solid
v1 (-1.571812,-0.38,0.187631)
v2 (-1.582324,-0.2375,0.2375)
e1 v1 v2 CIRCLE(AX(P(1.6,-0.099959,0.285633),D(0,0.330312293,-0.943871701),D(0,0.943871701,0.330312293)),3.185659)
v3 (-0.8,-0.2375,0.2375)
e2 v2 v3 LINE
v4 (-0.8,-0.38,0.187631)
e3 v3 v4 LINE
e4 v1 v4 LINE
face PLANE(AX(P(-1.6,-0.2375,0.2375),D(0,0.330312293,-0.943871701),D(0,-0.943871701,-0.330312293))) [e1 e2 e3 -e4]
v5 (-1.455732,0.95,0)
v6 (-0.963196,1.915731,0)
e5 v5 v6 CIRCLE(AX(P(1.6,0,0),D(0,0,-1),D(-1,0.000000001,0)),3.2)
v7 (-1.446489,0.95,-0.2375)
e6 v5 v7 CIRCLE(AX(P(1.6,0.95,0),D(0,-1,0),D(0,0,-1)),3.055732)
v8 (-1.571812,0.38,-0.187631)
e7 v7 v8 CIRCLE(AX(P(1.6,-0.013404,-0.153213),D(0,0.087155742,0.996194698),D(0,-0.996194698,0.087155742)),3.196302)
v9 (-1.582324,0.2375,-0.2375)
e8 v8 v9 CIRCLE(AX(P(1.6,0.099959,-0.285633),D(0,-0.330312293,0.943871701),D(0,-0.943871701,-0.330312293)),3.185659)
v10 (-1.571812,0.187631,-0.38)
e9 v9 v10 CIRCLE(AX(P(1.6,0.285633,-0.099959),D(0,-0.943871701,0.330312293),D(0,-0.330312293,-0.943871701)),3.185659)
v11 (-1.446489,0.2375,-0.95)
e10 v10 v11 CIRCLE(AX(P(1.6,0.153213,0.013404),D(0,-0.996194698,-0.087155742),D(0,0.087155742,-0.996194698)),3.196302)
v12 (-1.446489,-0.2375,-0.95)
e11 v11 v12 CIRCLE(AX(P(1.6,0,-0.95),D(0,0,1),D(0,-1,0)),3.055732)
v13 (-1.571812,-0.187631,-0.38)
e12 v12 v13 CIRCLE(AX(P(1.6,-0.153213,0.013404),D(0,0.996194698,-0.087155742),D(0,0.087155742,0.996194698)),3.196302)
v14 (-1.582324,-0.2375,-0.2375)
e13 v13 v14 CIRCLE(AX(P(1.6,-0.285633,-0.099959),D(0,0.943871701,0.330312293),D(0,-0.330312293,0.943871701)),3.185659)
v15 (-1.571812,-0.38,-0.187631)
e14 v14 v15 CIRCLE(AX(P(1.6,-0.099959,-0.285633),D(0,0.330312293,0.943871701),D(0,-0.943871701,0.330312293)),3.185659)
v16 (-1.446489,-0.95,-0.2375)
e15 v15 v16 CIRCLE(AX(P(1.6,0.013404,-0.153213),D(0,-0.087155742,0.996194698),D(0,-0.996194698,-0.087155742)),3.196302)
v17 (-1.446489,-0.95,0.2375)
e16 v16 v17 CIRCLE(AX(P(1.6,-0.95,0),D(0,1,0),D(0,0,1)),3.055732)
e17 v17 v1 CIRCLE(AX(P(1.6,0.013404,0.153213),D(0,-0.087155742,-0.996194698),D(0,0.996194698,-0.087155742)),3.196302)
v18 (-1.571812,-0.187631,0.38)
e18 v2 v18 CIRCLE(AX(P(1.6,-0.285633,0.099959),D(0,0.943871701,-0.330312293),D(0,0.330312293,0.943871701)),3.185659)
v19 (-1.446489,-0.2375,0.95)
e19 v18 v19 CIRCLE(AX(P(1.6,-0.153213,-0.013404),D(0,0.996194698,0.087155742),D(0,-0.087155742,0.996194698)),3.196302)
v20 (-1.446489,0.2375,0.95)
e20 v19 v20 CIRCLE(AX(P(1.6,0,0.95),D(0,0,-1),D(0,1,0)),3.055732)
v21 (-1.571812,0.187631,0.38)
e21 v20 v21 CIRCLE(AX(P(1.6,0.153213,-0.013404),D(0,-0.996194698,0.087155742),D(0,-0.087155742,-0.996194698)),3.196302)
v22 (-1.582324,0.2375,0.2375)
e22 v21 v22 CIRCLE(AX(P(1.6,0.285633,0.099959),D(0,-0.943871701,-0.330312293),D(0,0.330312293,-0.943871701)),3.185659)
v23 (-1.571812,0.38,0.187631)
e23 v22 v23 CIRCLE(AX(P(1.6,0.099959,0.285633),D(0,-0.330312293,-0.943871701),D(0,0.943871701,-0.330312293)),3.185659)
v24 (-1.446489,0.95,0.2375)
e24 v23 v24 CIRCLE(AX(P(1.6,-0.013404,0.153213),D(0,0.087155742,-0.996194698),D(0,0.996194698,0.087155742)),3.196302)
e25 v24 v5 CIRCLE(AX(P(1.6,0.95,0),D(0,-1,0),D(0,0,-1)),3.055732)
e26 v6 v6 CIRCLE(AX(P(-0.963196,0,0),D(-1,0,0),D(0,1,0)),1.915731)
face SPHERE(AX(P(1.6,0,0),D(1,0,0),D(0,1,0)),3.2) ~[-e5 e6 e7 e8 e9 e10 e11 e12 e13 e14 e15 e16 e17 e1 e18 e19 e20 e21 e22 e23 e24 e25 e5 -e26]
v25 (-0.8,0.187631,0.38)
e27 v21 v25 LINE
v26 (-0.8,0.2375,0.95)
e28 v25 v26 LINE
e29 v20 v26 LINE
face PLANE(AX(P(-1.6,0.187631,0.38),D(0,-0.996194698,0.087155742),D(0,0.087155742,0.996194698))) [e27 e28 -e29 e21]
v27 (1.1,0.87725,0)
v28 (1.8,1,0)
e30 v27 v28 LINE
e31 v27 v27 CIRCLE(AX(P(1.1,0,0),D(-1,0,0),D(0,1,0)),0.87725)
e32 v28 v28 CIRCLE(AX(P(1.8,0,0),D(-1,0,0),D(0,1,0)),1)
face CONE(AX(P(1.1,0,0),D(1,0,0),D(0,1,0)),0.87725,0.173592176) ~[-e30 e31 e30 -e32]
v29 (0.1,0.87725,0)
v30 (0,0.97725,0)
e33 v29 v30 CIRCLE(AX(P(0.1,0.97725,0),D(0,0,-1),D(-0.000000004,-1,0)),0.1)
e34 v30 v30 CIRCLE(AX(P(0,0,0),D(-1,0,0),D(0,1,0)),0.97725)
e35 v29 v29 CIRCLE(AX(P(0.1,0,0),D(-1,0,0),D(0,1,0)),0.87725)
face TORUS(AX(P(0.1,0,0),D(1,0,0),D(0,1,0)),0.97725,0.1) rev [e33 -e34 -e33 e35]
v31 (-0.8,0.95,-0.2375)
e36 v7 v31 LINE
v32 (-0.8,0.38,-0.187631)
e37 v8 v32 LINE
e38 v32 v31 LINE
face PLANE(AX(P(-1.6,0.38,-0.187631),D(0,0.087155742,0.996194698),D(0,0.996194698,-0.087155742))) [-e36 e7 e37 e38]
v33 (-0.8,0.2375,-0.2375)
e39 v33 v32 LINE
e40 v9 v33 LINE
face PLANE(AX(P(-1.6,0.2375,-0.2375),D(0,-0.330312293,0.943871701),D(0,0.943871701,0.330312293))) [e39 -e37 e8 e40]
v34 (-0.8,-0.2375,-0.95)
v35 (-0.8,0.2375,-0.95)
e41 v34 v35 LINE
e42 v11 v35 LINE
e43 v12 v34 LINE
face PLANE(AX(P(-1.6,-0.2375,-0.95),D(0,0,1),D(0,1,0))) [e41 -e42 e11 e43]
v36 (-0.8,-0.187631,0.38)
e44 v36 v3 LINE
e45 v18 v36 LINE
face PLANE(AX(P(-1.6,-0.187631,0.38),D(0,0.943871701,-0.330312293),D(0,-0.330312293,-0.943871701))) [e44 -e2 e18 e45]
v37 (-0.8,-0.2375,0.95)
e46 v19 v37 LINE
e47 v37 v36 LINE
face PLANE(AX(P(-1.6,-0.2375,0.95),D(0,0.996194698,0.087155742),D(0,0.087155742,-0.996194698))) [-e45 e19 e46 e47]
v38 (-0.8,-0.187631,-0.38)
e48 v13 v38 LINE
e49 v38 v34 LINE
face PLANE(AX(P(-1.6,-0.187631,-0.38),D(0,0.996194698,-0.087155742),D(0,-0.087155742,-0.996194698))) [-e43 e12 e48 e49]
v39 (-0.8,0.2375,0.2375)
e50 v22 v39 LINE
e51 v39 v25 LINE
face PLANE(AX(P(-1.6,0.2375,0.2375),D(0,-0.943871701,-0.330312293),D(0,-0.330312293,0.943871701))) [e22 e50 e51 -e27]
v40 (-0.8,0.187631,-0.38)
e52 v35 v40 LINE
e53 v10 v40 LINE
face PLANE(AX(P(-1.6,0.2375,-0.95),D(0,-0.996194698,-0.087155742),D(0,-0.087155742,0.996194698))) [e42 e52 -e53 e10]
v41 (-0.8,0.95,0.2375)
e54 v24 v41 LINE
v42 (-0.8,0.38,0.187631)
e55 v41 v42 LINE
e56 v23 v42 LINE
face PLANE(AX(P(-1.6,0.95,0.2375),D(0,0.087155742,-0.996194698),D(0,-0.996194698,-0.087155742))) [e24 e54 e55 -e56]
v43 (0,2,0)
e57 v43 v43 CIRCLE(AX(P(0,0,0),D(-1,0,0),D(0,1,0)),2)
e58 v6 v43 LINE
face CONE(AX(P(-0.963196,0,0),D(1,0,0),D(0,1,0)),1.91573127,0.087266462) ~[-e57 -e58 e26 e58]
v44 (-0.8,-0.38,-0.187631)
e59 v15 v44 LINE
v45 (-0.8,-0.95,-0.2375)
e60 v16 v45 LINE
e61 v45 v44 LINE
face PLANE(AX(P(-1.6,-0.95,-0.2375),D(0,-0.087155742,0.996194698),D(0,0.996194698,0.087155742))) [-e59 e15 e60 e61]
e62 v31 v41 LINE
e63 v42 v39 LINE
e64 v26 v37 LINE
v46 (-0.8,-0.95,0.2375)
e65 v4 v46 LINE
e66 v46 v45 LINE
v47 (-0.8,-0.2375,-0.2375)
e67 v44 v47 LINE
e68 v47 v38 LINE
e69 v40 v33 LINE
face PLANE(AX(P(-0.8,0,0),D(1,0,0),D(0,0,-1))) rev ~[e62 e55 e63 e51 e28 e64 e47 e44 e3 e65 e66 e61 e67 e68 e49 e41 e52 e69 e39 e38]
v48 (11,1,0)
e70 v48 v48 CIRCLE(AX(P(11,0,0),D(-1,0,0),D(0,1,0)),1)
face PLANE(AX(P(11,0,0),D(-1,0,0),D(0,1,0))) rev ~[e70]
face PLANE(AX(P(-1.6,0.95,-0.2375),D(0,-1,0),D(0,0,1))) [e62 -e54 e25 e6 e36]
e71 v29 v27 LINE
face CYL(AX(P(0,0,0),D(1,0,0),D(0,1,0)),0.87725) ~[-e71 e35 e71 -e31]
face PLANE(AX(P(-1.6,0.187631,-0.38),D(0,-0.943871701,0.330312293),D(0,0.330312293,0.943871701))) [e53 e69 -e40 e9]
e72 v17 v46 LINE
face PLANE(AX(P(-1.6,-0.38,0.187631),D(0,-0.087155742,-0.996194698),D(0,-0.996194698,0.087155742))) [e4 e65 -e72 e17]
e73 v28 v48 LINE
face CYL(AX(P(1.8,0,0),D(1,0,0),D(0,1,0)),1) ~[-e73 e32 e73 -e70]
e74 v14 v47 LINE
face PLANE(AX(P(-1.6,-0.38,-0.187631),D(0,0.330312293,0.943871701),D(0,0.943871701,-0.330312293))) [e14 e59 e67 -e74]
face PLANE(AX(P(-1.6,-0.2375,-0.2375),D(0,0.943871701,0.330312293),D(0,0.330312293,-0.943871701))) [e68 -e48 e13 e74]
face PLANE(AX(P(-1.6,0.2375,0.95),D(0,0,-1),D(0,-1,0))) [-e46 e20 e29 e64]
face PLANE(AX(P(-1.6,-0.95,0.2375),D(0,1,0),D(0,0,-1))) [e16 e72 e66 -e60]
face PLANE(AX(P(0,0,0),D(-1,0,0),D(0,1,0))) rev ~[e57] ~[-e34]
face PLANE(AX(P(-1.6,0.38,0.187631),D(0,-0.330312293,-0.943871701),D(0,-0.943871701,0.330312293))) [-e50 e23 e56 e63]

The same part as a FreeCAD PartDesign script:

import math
import FreeCAD as App
import Part
import Sketcher
Q = App.Units.Quantity


def add_polygon(sketch, points):
    """Adds a closed chain of lines whose ends are joined by coincident constraints."""
    first, n = sketch.GeometryCount, len(points)
    for a, b in zip(points, points[1:] + points[:1]):
        sketch.addGeometry(Part.LineSegment(App.Vector(*a, 0), App.Vector(*b, 0)), False)
    for i in range(n):
        sketch.addConstraint(Sketcher.Constraint("Coincident", first + i, 2, first + (i + 1) % n, 1))

doc = App.newDocument("Part")
body = doc.addObject("PartDesign::Body", "Body")

# Sketch on XY plane
sketch1 = doc.addObject("Sketcher::SketchObject", "Sketch")
body.addObject(sketch1)
sketch1.AttachmentSupport = (doc.XY_Plane, [""])
sketch1.MapMode = "FlatFace"
sketch1.addGeometry([
    Part.LineSegment(App.Vector(0, 2, 0), App.Vector(-1, 1.9, 0)),  # 0
    Part.ArcOfCircle(Part.Circle(App.Vector(1.6, 0, 0), App.Vector(0, 0, 1), 3.2), math.radians(143), math.radians(180)),  # 1
    Part.LineSegment(App.Vector(-1.6, 0, 0), App.Vector(11, 0, 0)),  # 2
    Part.LineSegment(App.Vector(11, 0, 0), App.Vector(11, 1, 0)),  # 3
    Part.LineSegment(App.Vector(11, 1, 0), App.Vector(1.8, 1, 0)),  # 4
    Part.LineSegment(App.Vector(1.8, 1, 0), App.Vector(1.1, 0.9, 0)),  # 5
    Part.LineSegment(App.Vector(1.1, 0.9, 0), App.Vector(0, 0.9, 0)),  # 6
    Part.LineSegment(App.Vector(0, 0.9, 0), App.Vector(0, 2, 0)),  # 7
], False)
sketch1.addConstraint([
    Sketcher.Constraint("Coincident", 0, 2, 1, 1),
    Sketcher.Constraint("Coincident", 1, 2, 2, 1),
    Sketcher.Constraint("Coincident", 2, 2, 3, 1),
    Sketcher.Constraint("Coincident", 3, 2, 4, 1),
    Sketcher.Constraint("Coincident", 4, 2, 5, 1),
    Sketcher.Constraint("Coincident", 5, 2, 6, 1),
    Sketcher.Constraint("Coincident", 6, 2, 7, 1),
    Sketcher.Constraint("Coincident", 7, 2, 0, 1),
    Sketcher.Constraint("Horizontal", 2),
    Sketcher.Constraint("Vertical", 3),
    Sketcher.Constraint("Horizontal", 4),
    Sketcher.Constraint("Horizontal", 6),
    Sketcher.Constraint("Vertical", 7),
    Sketcher.Constraint("PointOnObject", 1, 3, -1),
    Sketcher.Constraint("PointOnObject", 1, 2, -1),
    Sketcher.Constraint("PointOnObject", 6, 2, -2),
    Sketcher.Constraint("Radius", 1, Q("3.2 mm")),
    Sketcher.Constraint("DistanceY", 3, 1, 3, 2, Q("1 mm")),
    Sketcher.Constraint("Angle", 0, Q("-175 deg")),
    Sketcher.Constraint("DistanceX", 2, 1, 2, 2, Q("12.6 mm")),
    Sketcher.Constraint("DistanceX", 4, 2, 4, 1, Q("9.2 mm")),
    Sketcher.Constraint("DistanceX", 6, 2, 6, 1, Q("1.1 mm")),
    Sketcher.Constraint("DistanceX", -1, 1, 2, 2, Q("11 mm")),
    Sketcher.Constraint("DistanceY", -1, 1, 7, 2, Q("2 mm")),
    Sketcher.Constraint("DistanceY", 7, 1, 7, 2, Q("1.12275 mm")),
])
revolution = doc.addObject("PartDesign::Revolution", "Revolution")
body.addObject(revolution)
revolution.Profile = sketch1
revolution.ReferenceAxis = (sketch1, ["H_Axis"])
revolution.Angle = 360

# Sketch on XY plane
sketch2 = doc.addObject("Sketcher::SketchObject", "Sketch001")
body.addObject(sketch2)
sketch2.AttachmentSupport = (doc.XY_Plane, [""])
sketch2.MapMode = "FlatFace"
sketch2.addGeometry([
    Part.LineSegment(App.Vector(-0.1, 0.78, 0), App.Vector(1.1, 0.78, 0)),  # 0
    Part.LineSegment(App.Vector(1.1, 0.78, 0), App.Vector(1.1, 0.88, 0)),  # 1
    Part.LineSegment(App.Vector(1.1, 0.88, 0), App.Vector(0.1, 0.88, 0)),  # 2
    Part.ArcOfCircle(Part.Circle(App.Vector(0.1, 0.98, 0), App.Vector(0, 0, 1), 0.1), math.radians(180), math.radians(270)),  # 3
    Part.LineSegment(App.Vector(0, 0.98, 0), App.Vector(-0.1, 0.98, 0)),  # 4
    Part.LineSegment(App.Vector(-0.1, 0.98, 0), App.Vector(-0.1, 0.78, 0)),  # 5
], False)
sketch2.addConstraint([
    Sketcher.Constraint("Coincident", 0, 2, 1, 1),
    Sketcher.Constraint("Coincident", 1, 2, 2, 1),
    Sketcher.Constraint("Tangent", 2, 2, 3, 2),
    Sketcher.Constraint("Coincident", 3, 1, 4, 1),
    Sketcher.Constraint("Coincident", 4, 2, 5, 1),
    Sketcher.Constraint("Coincident", 5, 2, 0, 1),
    Sketcher.Constraint("Horizontal", 0),
    Sketcher.Constraint("Vertical", 1),
    Sketcher.Constraint("Horizontal", 2),
    Sketcher.Constraint("Horizontal", 4),
    Sketcher.Constraint("Vertical", 5),
    Sketcher.Constraint("PointOnObject", 3, 1, -2),
    Sketcher.Constraint("Equal", 4, 1),
    Sketcher.Constraint("Radius", 3, Q("0.1 mm")),
    Sketcher.Constraint("DistanceX", 2, 2, 2, 1, Q("1 mm")),
    Sketcher.Constraint("DistanceX", 0, 1, 0, 2, Q("1.2 mm")),
    Sketcher.Constraint("DistanceY", 5, 2, 5, 1, Q("0.2 mm")),
    Sketcher.Constraint("DistanceY", -1, 1, 3, 3, Q("0.97725 mm")),
])
revolution2 = doc.addObject("PartDesign::Revolution", "Revolution001")
body.addObject(revolution2)
revolution2.Profile = sketch2
revolution2.ReferenceAxis = (sketch2, ["H_Axis"])
revolution2.Angle = 360

# Sketch on YZ plane
sketch3 = doc.addObject("Sketcher::SketchObject", "Sketch002")
body.addObject(sketch3)
sketch3.AttachmentSupport = (doc.YZ_Plane, [""])
sketch3.MapMode = "FlatFace"
sketch3.AttachmentOffset = App.Placement(App.Vector(0, 0, -1.6), App.Rotation())
add_polygon(sketch3, [(0.24, 0.95), (-0.24, 0.95), (-0.19, 0.38), (-0.24, 0.24), (-0.38, 0.19), (-0.95, 0.24), (-0.95, -0.24), (-0.38, -0.19), (-0.24, -0.24), (-0.19, -0.38), (-0.24, -0.95), (0.24, -0.95), (0.19, -0.38), (0.24, -0.24), (0.38, -0.19), (0.95, -0.24), (0.95, 0.24), (0.38, 0.19), (0.24, 0.24), (0.19, 0.38)])  # lines 0-19
sketch3.addConstraint([
    Sketcher.Constraint("Horizontal", 0),
    Sketcher.Constraint("Vertical", 5),
    Sketcher.Constraint("Horizontal", 10),
    Sketcher.Constraint("Vertical", 15),
    Sketcher.Constraint("Symmetric", 0, 2, 10, 2, -1, 1),
    Sketcher.Constraint("Symmetric", 1, 2, 11, 2, -1, 1),
    Sketcher.Constraint("Symmetric", 2, 2, 12, 2, -1, 1),
    Sketcher.Constraint("Symmetric", 3, 2, 13, 2, -1, 1),
    Sketcher.Constraint("Symmetric", 4, 2, 14, 2, -1, 1),
    Sketcher.Constraint("Symmetric", 6, 2, 16, 2, -1, 1),
    Sketcher.Constraint("Symmetric", 7, 2, 17, 2, -1, 1),
    Sketcher.Constraint("Symmetric", 8, 2, 18, 2, -1, 1),
    Sketcher.Constraint("Symmetric", 8, 2, 11, 2, -2),
    Sketcher.Constraint("Symmetric", 7, 2, 12, 2, -2),
    Sketcher.Constraint("Symmetric", 6, 2, 13, 2, -2),
    Sketcher.Constraint("Perpendicular", 1, 6),
    Sketcher.Constraint("Perpendicular", 2, 7),
    Sketcher.Constraint("Perpendicular", 4, 9),
    Sketcher.Constraint("Perpendicular", 11, 16),
    Sketcher.Constraint("Perpendicular", 14, 19),
    Sketcher.Constraint("Horizontal", 2, 2, 4, 2),
    Sketcher.Constraint("Horizontal", 5, 2, 7, 2),
    Sketcher.Constraint("Vertical", 0, 2, 2, 2),
    Sketcher.Constraint("Equal", 10, 5),
    Sketcher.Constraint("Equal", 2, 3),
    Sketcher.Constraint("Angle", 1, Q("-85 deg")),
    Sketcher.Constraint("DistanceX", 0, 2, 0, 1, Q("0.475 mm")),
    Sketcher.Constraint("DistanceY", -1, 1, 0, 2, Q("0.95 mm")),
    Sketcher.Constraint("DistanceY", -1, 1, 1, 2, Q("0.38 mm")),
])
pocket1 = doc.addObject("PartDesign::Pocket", "Pocket")
body.addObject(pocket1)
pocket1.Profile = sketch3
pocket1.Length = 0.8
pocket1.Reversed = True

doc.recompute()
